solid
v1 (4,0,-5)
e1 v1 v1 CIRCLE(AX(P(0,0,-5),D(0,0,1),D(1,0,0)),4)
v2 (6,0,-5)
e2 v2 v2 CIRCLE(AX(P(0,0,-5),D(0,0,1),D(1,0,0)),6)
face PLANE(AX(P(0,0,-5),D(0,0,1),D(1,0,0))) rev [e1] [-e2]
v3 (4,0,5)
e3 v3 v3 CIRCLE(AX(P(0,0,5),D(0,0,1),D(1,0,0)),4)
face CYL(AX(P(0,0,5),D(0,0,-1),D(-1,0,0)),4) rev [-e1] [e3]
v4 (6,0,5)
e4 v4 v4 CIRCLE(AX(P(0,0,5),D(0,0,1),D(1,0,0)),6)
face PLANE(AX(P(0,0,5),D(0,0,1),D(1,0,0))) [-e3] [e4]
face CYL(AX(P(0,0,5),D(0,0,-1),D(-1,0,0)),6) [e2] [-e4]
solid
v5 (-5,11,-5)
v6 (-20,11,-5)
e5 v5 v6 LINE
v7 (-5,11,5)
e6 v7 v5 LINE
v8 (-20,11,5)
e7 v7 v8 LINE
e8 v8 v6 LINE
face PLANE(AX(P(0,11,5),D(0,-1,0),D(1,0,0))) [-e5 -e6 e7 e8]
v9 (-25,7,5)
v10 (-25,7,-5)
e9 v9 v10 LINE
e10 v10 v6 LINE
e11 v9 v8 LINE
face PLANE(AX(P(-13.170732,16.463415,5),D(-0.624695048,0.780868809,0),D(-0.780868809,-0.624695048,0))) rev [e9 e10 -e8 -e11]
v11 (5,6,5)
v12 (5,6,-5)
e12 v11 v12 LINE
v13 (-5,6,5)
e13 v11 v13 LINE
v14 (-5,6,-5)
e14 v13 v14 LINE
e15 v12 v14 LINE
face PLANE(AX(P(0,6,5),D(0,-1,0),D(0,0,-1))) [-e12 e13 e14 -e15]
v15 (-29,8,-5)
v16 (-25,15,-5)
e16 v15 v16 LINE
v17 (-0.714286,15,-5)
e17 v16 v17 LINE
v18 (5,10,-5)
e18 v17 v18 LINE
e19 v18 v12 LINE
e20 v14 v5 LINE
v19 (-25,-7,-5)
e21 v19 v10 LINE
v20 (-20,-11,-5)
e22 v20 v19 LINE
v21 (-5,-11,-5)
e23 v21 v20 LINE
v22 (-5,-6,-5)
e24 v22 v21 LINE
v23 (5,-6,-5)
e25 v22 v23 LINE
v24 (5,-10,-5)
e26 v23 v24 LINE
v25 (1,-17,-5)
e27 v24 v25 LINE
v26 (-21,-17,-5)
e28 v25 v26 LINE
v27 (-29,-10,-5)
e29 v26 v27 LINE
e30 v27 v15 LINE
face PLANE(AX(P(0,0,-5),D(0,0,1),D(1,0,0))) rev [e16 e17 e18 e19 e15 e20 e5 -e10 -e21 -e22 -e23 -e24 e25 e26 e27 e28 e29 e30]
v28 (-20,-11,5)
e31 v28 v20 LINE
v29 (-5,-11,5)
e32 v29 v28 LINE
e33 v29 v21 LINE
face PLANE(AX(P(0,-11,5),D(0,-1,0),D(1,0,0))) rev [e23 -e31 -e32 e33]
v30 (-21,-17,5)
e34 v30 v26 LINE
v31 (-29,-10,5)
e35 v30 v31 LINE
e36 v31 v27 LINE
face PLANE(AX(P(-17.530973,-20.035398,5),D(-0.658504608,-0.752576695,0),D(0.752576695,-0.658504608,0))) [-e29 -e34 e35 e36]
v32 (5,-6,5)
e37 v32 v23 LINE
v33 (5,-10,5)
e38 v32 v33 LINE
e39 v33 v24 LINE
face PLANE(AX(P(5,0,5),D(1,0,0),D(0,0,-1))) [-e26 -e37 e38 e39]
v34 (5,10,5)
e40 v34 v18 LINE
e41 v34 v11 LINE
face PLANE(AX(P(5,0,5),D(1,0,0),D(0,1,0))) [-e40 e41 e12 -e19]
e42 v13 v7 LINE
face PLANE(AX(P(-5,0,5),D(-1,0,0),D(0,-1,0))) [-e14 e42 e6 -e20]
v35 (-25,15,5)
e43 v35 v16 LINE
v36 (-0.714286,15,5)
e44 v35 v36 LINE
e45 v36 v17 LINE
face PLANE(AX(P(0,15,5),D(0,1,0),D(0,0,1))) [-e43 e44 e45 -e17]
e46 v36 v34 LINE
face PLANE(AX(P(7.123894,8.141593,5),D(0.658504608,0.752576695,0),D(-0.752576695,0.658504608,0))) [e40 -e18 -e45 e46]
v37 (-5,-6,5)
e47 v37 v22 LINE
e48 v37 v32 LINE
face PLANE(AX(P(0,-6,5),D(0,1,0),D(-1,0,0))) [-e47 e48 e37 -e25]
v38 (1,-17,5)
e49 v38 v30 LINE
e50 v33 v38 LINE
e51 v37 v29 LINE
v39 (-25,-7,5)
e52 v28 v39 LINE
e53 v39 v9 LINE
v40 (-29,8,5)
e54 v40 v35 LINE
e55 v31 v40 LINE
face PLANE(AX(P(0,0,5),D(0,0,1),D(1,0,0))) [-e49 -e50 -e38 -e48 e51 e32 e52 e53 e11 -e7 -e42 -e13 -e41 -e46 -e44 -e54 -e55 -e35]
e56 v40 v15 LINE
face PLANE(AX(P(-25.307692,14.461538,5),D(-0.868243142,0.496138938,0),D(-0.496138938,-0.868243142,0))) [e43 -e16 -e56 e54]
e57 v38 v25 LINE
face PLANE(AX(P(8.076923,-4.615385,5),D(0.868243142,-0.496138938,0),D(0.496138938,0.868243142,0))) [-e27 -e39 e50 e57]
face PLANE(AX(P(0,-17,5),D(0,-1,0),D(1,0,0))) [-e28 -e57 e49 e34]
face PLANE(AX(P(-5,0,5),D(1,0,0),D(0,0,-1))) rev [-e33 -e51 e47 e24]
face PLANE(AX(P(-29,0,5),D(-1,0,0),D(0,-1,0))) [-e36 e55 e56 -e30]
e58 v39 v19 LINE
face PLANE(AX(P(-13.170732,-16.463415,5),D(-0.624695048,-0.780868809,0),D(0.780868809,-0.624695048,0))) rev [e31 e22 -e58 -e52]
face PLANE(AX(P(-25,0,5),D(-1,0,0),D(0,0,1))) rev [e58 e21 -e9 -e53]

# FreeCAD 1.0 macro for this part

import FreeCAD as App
import Part
import Sketcher

V = App.Vector


def add_polygon(sketch, points):
    """Adds a closed chain of lines whose ends are joined by coincident constraints."""
    first, n = sketch.GeometryCount, len(points)
    for a, b in zip(points, points[1:] + points[:1]):
        sketch.addGeometry(Part.LineSegment(App.Vector(*a, 0), App.Vector(*b, 0)), False)
    for i in range(n):
        sketch.addConstraint(Sketcher.Constraint("Coincident", first + i, 2, first + (i + 1) % n, 1))

doc = App.newDocument("Part")
params = doc.addObject("Spreadsheet::Sheet", "Params")
for row, (alias, value) in enumerate([
    ("sketch1_width", "15 mm"),
    ("sketch1_width2", "10 mm"),
    ("sketch1_width3", "22 mm"),
    ("sketch1_height", "5 mm"),
    ("sketch1_height2", "4 mm"),
    ("pad1_length", "10 mm"),
    ("sketch2_diameter", "12 mm"),
    ("sketch2_diameter2", "8 mm"),
    ("pad2_length", "10 mm"),
], start=1):
    params.set(f"A{row}", alias)
    params.set(f"B{row}", "=" + value)
    params.setAlias(f"B{row}", alias)

body = doc.addObject("PartDesign::Body", "Body")

# Sketch on XY plane
sketch1 = body.newObject("Sketcher::SketchObject", "Sketch")
sketch1.AttachmentSupport = (doc.getObject("XY_Plane"), [""])
sketch1.MapMode = "FlatFace"
add_polygon(sketch1, [(-20, 11), (-5, 11), (-5, 6), (5, 6), (5, 10), (-0.7, 15), (-25, 15), (-29, 8), (-29, -10), (-21, -17), (1, -17), (5, -10), (5, -6), (-5, -6), (-5, -11), (-20, -11), (-25, -7), (-25, 7)])  # lines 0-17
sketch1.addConstraint([
    Sketcher.Constraint("Horizontal", 0),
    Sketcher.Constraint("Vertical", 1),
    Sketcher.Constraint("Horizontal", 2),
    Sketcher.Constraint("Vertical", 3),
    Sketcher.Constraint("Horizontal", 5),
    Sketcher.Constraint("Vertical", 7),
    Sketcher.Constraint("Horizontal", 9),
    Sketcher.Constraint("Vertical", 11),
    Sketcher.Constraint("Horizontal", 12),
    Sketcher.Constraint("Vertical", 13),
    Sketcher.Constraint("Horizontal", 14),
    Sketcher.Constraint("Vertical", 16),
    Sketcher.Constraint("Symmetric", 1, 2, 11, 2, -1, 1),
    Sketcher.Constraint("Symmetric", 3, 2, 10, 2, -1),
    Sketcher.Constraint("Symmetric", 0, 2, 13, 2, -1),
    Sketcher.Constraint("Parallel", 4, 8),
    Sketcher.Constraint("Parallel", 6, 10),
    Sketcher.Constraint("Horizontal", 7, 2, 10, 2),
    Sketcher.Constraint("Vertical", 5, 2, 15, 2),
    Sketcher.Constraint("Vertical", 14, 2, 17, 2),
    Sketcher.Constraint("Equal", 6, 10),
    Sketcher.Constraint("Equal", 15, 17),
    Sketcher.Constraint("DistanceX", 0, 1, 0, 2, 15.0),
    Sketcher.Constraint("DistanceX", 2, 1, 2, 2, 10.0),
    Sketcher.Constraint("DistanceX", 9, 1, 9, 2, 22.0),
    Sketcher.Constraint("DistanceY", 1, 2, 1, 1, 5.0),
    Sketcher.Constraint("DistanceY", 3, 1, 3, 2, 4.0),
    Sketcher.Constraint("DistanceY", 7, 2, 7, 1, 18.0),
    Sketcher.Constraint("DistanceY", 16, 1, 16, 2, 14.0),
    Sketcher.Constraint("DistanceY", -1, 1, 0, 2, 11.0),
    Sketcher.Constraint("DistanceY", -1, 1, 4, 2, 15.0),
    Sketcher.Constraint("DistanceX", 5, 2, -1, 1, 25.0),
    Sketcher.Constraint("DistanceX", 6, 2, -1, 1, 29.0),
])
sketch1.setExpression("Constraints[40]", "Params.sketch1_width")
sketch1.setExpression("Constraints[41]", "Params.sketch1_width2")
sketch1.setExpression("Constraints[42]", "Params.sketch1_width3")
sketch1.setExpression("Constraints[43]", "Params.sketch1_height")
sketch1.setExpression("Constraints[44]", "Params.sketch1_height2")
pad1 = body.newObject("PartDesign::Pad", "Pad")
pad1.Profile = sketch1
pad1.setExpression("Length", "Params.pad1_length")
pad1.Midplane = True
body2 = doc.addObject("PartDesign::Body", "Body001")

# Sketch on XY plane
sketch2 = body2.newObject("Sketcher::SketchObject", "Sketch001")
sketch2.AttachmentSupport = (doc.getObject("XY_Plane001"), [""])
sketch2.MapMode = "FlatFace"
sketch2.addGeometry([
    Part.Circle(V(0, 0, 0), V(0, 0, 1), 6),
    Part.Circle(V(0, 0, 0), V(0, 0, 1), 4),
], False)
sketch2.addConstraint([
    Sketcher.Constraint("Coincident", 0, 3, -1, 1),
    Sketcher.Constraint("Coincident", 1, 3, -1, 1),
    Sketcher.Constraint("Diameter", 0, 12.0),
    Sketcher.Constraint("Diameter", 1, 8.0),
])
sketch2.setExpression("Constraints[2]", "Params.sketch2_diameter")
sketch2.setExpression("Constraints[3]", "Params.sketch2_diameter2")
pad2 = body2.newObject("PartDesign::Pad", "Pad001")
pad2.Profile = sketch2
pad2.setExpression("Length", "Params.pad2_length")
pad2.Midplane = True

doc.recompute()
